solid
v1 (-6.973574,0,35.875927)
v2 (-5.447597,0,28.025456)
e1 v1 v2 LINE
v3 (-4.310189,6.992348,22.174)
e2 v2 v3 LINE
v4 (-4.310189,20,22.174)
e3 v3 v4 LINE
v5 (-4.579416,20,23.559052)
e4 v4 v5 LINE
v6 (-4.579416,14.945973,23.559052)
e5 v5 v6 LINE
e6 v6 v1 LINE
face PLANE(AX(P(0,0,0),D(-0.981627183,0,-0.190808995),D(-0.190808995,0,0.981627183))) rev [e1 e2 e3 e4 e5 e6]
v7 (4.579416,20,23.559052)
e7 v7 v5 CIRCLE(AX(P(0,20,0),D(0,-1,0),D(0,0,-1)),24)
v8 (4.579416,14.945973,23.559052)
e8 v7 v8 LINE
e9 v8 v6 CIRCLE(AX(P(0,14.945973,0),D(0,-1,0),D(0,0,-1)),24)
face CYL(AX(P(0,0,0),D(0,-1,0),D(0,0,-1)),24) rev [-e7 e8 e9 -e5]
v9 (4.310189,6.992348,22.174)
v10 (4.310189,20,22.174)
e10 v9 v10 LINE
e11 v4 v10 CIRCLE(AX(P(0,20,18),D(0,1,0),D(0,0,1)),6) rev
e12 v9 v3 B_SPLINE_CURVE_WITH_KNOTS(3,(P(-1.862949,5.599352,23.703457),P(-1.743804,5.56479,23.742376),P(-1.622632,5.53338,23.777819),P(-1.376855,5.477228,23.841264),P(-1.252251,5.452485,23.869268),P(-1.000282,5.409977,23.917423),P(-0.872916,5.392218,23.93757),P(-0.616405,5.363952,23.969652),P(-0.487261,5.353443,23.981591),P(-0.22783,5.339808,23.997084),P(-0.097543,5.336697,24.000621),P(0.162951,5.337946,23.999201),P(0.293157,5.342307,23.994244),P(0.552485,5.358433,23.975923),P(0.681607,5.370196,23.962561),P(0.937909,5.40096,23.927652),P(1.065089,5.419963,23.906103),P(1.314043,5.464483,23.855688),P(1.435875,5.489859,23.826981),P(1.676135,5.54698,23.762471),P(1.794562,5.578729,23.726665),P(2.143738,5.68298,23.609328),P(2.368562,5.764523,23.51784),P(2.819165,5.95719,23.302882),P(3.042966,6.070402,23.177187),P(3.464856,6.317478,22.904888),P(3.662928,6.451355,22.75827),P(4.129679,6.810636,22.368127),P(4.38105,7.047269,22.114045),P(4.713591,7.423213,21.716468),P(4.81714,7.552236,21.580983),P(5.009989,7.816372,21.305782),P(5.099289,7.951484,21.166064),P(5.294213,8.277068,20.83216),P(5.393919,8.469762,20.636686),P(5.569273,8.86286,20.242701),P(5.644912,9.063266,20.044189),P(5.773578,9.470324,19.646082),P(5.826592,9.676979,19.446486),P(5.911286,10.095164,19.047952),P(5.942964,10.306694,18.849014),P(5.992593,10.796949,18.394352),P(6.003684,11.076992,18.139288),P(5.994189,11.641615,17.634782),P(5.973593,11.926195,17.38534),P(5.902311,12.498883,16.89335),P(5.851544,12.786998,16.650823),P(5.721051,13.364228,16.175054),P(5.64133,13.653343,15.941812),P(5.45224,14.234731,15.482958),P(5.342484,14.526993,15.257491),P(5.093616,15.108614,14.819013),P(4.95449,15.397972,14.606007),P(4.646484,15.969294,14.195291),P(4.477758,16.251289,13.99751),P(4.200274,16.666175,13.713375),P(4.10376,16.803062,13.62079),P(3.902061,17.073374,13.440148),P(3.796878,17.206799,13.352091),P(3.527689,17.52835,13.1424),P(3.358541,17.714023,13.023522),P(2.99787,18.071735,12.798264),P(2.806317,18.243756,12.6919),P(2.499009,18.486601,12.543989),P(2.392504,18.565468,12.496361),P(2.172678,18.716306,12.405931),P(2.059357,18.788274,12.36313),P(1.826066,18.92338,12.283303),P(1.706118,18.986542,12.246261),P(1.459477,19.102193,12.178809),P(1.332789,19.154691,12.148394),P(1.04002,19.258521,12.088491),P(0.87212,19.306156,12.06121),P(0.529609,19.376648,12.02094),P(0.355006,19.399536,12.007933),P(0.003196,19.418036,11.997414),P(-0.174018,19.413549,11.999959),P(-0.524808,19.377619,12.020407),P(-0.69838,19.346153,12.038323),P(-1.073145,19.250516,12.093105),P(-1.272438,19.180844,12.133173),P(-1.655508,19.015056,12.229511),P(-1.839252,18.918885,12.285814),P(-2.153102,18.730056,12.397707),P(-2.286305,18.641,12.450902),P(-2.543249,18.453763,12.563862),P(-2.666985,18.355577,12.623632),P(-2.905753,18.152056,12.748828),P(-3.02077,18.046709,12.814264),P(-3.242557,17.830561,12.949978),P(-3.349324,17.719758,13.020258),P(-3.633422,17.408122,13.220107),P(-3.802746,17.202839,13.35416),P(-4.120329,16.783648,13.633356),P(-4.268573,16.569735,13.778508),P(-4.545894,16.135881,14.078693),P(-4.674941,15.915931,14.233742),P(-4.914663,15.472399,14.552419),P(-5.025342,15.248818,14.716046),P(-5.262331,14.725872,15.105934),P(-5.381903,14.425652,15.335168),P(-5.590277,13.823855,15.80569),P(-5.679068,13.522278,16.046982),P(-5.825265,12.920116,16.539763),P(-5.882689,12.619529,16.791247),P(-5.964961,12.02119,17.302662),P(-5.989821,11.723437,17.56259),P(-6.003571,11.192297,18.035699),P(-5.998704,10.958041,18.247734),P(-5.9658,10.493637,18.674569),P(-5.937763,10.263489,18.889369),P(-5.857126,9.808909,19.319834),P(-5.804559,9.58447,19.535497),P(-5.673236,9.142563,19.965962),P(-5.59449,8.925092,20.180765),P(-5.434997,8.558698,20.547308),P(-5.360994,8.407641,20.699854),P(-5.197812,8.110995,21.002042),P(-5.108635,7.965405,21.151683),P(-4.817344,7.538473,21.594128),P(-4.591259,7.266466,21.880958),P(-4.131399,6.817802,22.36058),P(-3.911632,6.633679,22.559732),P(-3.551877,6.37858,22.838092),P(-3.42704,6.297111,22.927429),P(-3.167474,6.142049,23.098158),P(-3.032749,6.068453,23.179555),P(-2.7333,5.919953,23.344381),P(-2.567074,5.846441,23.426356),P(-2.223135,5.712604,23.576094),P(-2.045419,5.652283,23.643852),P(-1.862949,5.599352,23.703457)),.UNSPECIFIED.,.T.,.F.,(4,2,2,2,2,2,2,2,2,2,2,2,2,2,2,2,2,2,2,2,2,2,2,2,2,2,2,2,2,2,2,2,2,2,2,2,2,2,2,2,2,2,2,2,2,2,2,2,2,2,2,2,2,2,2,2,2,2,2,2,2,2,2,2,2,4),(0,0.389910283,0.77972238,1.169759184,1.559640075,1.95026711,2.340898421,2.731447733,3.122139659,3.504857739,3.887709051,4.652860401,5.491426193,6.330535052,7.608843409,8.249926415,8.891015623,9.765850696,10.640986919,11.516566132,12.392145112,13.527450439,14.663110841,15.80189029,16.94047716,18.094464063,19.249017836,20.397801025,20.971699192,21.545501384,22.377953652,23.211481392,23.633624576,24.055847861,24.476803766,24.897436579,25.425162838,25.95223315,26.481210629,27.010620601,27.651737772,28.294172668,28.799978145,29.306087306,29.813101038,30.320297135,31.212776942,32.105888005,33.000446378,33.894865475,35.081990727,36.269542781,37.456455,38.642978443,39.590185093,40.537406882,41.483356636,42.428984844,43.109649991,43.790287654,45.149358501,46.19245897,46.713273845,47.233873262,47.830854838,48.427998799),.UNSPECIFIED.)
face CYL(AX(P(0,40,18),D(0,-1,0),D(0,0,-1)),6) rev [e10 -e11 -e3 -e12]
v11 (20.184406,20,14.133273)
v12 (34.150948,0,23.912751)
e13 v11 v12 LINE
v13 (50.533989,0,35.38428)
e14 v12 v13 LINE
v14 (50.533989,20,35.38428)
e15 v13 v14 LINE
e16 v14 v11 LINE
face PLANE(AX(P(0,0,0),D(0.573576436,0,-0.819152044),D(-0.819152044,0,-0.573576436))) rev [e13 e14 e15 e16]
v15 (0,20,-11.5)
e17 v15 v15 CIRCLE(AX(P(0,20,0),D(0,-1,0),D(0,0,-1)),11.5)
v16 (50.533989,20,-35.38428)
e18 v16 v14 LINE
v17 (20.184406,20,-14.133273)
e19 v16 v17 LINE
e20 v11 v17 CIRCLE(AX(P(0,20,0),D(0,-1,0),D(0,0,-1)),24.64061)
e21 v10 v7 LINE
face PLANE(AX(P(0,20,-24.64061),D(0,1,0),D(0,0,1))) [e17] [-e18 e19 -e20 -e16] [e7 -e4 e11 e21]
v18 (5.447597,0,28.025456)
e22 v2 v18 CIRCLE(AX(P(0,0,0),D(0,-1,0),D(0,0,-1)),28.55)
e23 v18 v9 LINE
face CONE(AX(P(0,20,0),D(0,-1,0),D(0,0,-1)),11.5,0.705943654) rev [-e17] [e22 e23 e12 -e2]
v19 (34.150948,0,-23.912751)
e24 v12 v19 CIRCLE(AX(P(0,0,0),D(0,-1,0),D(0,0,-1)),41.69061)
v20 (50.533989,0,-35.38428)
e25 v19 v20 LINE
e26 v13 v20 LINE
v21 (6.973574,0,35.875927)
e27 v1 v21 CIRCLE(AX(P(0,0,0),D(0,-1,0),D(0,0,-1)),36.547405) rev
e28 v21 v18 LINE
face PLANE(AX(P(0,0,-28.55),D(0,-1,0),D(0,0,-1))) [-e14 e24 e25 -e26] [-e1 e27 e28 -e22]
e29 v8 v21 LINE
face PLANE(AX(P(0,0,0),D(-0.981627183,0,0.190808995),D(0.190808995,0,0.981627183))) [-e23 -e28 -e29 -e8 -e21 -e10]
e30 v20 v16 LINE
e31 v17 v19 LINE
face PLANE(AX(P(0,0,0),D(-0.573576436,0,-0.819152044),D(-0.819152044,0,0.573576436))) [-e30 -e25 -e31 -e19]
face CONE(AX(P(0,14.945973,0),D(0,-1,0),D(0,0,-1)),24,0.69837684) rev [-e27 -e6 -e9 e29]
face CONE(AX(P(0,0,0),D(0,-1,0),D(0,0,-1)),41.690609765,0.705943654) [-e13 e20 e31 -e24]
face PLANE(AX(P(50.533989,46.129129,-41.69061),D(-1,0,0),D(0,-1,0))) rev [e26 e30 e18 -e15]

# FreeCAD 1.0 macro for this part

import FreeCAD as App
import Part
import Sketcher

V = App.Vector
Q = App.Units.Quantity

doc = App.newDocument("Part")
body = doc.addObject("PartDesign::Body", "Body")

# Sketch on YZ plane
sketch1 = body.newObject("Sketcher::SketchObject", "Sketch")
sketch1.AttachmentSupport = (doc.getObject("YZ_Plane"), [""])
sketch1.MapMode = "FlatFace"
sketch1.addGeometry([
    Part.LineSegment(V(20, -11.5, 0), V(0, -28.55, 0)),
    Part.LineSegment(V(0, -28.55, 0), V(0, -41.69061, 0)),
    Part.LineSegment(V(0, -41.69061, 0), V(20, -24.64061, 0)),
    Part.LineSegment(V(20, -24.64061, 0), V(20, -11.5, 0)),
], False)
sketch1.addConstraint([
    Sketcher.Constraint("Coincident", 0, 2, 1, 1),
    Sketcher.Constraint("Coincident", 1, 2, 2, 1),
    Sketcher.Constraint("Coincident", 2, 2, 3, 1),
    Sketcher.Constraint("Coincident", 3, 2, 0, 1),
    Sketcher.Constraint("Vertical", 1),
    Sketcher.Constraint("Vertical", 3),
    Sketcher.Constraint("PointOnObject", 0, 2, -2),
    Sketcher.Constraint("Parallel", 0, 2),
    Sketcher.Constraint("DistanceX", -1, 1, 2, 2, Q("20 mm")),
    Sketcher.Constraint("DistanceY", 3, 2, -1, 1, Q("11.5 mm")),
    Sketcher.Constraint("DistanceY", 0, 2, -1, 1, Q("28.55 mm")),
    Sketcher.Constraint("DistanceY", 1, 2, 1, 1, Q("13.14061 mm")),
])
revolution = body.newObject("PartDesign::Revolution", "Revolution")
revolution.Profile = sketch1
revolution.ReferenceAxis = (sketch1, ["H_Axis"])
revolution.Angle = 360

# Sketch on XY plane
sketch2 = body.newObject("Sketcher::SketchObject", "Sketch001")
sketch2.AttachmentSupport = (doc.getObject("XY_Plane"), [""])
sketch2.MapMode = "FlatFace"
sketch2.addGeometry([
    Part.LineSegment(V(61.69061, 20, 0), V(24.64061, 20, 0)),
    Part.LineSegment(V(24.64061, 20, 0), V(41.69061, 0, 0)),
    Part.LineSegment(V(41.69061, 0, 0), V(61.69061, 0, 0)),
    Part.LineSegment(V(61.69061, 0, 0), V(61.69061, 20, 0)),
], False)
sketch2.addConstraint([
    Sketcher.Constraint("Coincident", 0, 2, 1, 1),
    Sketcher.Constraint("Coincident", 1, 2, 2, 1),
    Sketcher.Constraint("Coincident", 2, 2, 3, 1),
    Sketcher.Constraint("Coincident", 3, 2, 0, 1),
    Sketcher.Constraint("Horizontal", 0),
    Sketcher.Constraint("Horizontal", 2),
    Sketcher.Constraint("Vertical", 3),
    Sketcher.Constraint("PointOnObject", 1, 2, -1),
    Sketcher.Constraint("Equal", 2, 3),
    Sketcher.Constraint("DistanceX", 2, 1, 2, 2, Q("20 mm")),
    Sketcher.Constraint("DistanceX", 0, 2, 0, 1, Q("37.05 mm")),
    Sketcher.Constraint("DistanceX", -1, 1, 0, 2, Q("24.64061 mm")),
])
revolution2 = body.newObject("PartDesign::Revolution", "Revolution001")
revolution2.Profile = sketch2
revolution2.ReferenceAxis = (sketch2, ["V_Axis"])
revolution2.Angle = 35

# Sketch on XY plane
sketch3 = body.newObject("Sketcher::SketchObject", "Sketch002")
sketch3.AttachmentSupport = (doc.getObject("XY_Plane"), [""])
sketch3.MapMode = "FlatFace"
sketch3.addGeometry([
    Part.LineSegment(V(61.69061, 20, 0), V(24.64061, 20, 0)),
    Part.LineSegment(V(24.64061, 20, 0), V(41.69061, 0, 0)),
    Part.LineSegment(V(41.69061, 0, 0), V(61.69061, 0, 0)),
    Part.LineSegment(V(61.69061, 0, 0), V(61.69061, 20, 0)),
], False)
sketch3.addConstraint([
    Sketcher.Constraint("Coincident", 0, 2, 1, 1),
    Sketcher.Constraint("Coincident", 1, 2, 2, 1),
    Sketcher.Constraint("Coincident", 2, 2, 3, 1),
    Sketcher.Constraint("Coincident", 3, 2, 0, 1),
    Sketcher.Constraint("Horizontal", 0),
    Sketcher.Constraint("Horizontal", 2),
    Sketcher.Constraint("Vertical", 3),
    Sketcher.Constraint("PointOnObject", 1, 2, -1),
    Sketcher.Constraint("Equal", 2, 3),
    Sketcher.Constraint("DistanceX", 2, 1, 2, 2, Q("20 mm")),
    Sketcher.Constraint("DistanceX", 0, 2, 0, 1, Q("37.05 mm")),
    Sketcher.Constraint("DistanceX", -1, 1, 0, 2, Q("24.64061 mm")),
])
revolution3 = body.newObject("PartDesign::Revolution", "Revolution002")
revolution3.Profile = sketch3
revolution3.ReferenceAxis = (sketch3, ["V_Axis"])
revolution3.Angle = 35
revolution3.Reversed = True

# Sketch on XY plane
sketch4 = body.newObject("Sketcher::SketchObject", "Sketch003")
sketch4.AttachmentSupport = (doc.getObject("XY_Plane"), [""])
sketch4.MapMode = "FlatFace"
sketch4.addGeometry([
    Part.LineSegment(V(50.533989, 46.129129, 0), V(50.533989, -20.590633, 0)),
    Part.LineSegment(V(50.533989, -20.590633, 0), V(105.21408, -20.590633, 0)),
    Part.LineSegment(V(105.21408, -20.590633, 0), V(105.21408, 46.129129, 0)),
    Part.LineSegment(V(105.21408, 46.129129, 0), V(50.533989, 46.129129, 0)),
], False)
sketch4.addConstraint([
    Sketcher.Constraint("Coincident", 0, 2, 1, 1),
    Sketcher.Constraint("Coincident", 1, 2, 2, 1),
    Sketcher.Constraint("Coincident", 2, 2, 3, 1),
    Sketcher.Constraint("Coincident", 3, 2, 0, 1),
    Sketcher.Constraint("Vertical", 0),
    Sketcher.Constraint("Horizontal", 1),
    Sketcher.Constraint("Vertical", 2),
    Sketcher.Constraint("Horizontal", 3),
    Sketcher.Constraint("DistanceX", 1, 1, 1, 2, Q("54.680091 mm")),
    Sketcher.Constraint("DistanceY", 0, 2, 0, 1, Q("66.719762 mm")),
    Sketcher.Constraint("DistanceX", -1, 1, 0, 2, Q("50.533989 mm")),
    Sketcher.Constraint("DistanceY", -1, 1, 2, 2, Q("46.129129 mm")),
])
pocket1 = body.newObject("PartDesign::Pocket", "Pocket")
pocket1.Profile = sketch4
pocket1.Type = "ThroughAll"
pocket1.Midplane = True

# Sketch on XZ plane
sketch5 = body.newObject("Sketcher::SketchObject", "Sketch004")
sketch5.AttachmentSupport = (doc.getObject("XZ_Plane"), [""])
sketch5.MapMode = "FlatFace"
sketch5.addGeometry(Part.Circle(V(0, 18, 0), V(0, 0, 1), 6), False)
sketch5.addConstraint([
    Sketcher.Constraint("PointOnObject", 0, 3, -2),
    Sketcher.Constraint("Diameter", 0, Q("12 mm")),
    Sketcher.Constraint("DistanceY", -1, 1, 0, 3, Q("18 mm")),
])
pocket2 = body.newObject("PartDesign::Pocket", "Pocket001")
pocket2.Profile = sketch5
pocket2.Length = 40

# Sketch on YZ plane
sketch6 = body.newObject("Sketcher::SketchObject", "Sketch005")
sketch6.AttachmentSupport = (doc.getObject("YZ_Plane"), [""])
sketch6.MapMode = "FlatFace"
sketch6.addGeometry([
    Part.LineSegment(V(14.945973, 24, 0), V(-8.562898, 43.736107, 0)),  # 0
    Part.LineSegment(V(-8.562898, 43.736107, 0), V(-8.562898, 17.388176, 0)),  # 1
    Part.LineSegment(V(-8.562898, 17.388176, 0), V(12.56371, 18.70488, 0)),  # 2
    Part.LineSegment(V(12.56371, 18.70488, 0), V(20, 18.431561, 0)),  # 3
    Part.LineSegment(V(20, 18.431561, 0), V(20, 24, 0)),  # 4
    Part.LineSegment(V(20, 24, 0), V(14.945973, 24, 0)),  # 5
], False)
sketch6.addConstraint([
    Sketcher.Constraint("Coincident", 0, 2, 1, 1),
    Sketcher.Constraint("Coincident", 1, 2, 2, 1),
    Sketcher.Constraint("Coincident", 2, 2, 3, 1),
    Sketcher.Constraint("Coincident", 3, 2, 4, 1),
    Sketcher.Constraint("Coincident", 4, 2, 5, 1),
    Sketcher.Constraint("Coincident", 5, 2, 0, 1),
    Sketcher.Constraint("Vertical", 1),
    Sketcher.Constraint("Vertical", 4),
    Sketcher.Constraint("Horizontal", 5),
    Sketcher.Constraint("DistanceX", -1, 1, 3, 2, Q("20 mm")),
    Sketcher.Constraint("DistanceY", -1, 1, 4, 2, Q("24 mm")),
    Sketcher.Constraint("Distance", 2, Q("21.167599 mm")),
    Sketcher.Constraint("DistanceY", 1, 2, 1, 1, Q("26.347931 mm")),
    Sketcher.Constraint("DistanceY", 4, 1, 4, 2, Q("5.568439 mm")),
    Sketcher.Constraint("Distance", 3, Q("7.441312 mm")),
    Sketcher.Constraint("DistanceX", 5, 2, 5, 1, Q("5.054027 mm")),
    Sketcher.Constraint("DistanceX", -1, 1, 2, 2, Q("12.56371 mm")),
    Sketcher.Constraint("DistanceX", 1, 2, 5, 2, Q("23.508871 mm")),
])
groove = body.newObject("PartDesign::Groove", "Groove")
groove.Profile = sketch6
groove.ReferenceAxis = (sketch6, ["H_Axis"])
groove.Angle = 11

# Sketch on YZ plane
sketch7 = body.newObject("Sketcher::SketchObject", "Sketch006")
sketch7.AttachmentSupport = (doc.getObject("YZ_Plane"), [""])
sketch7.MapMode = "FlatFace"
sketch7.addGeometry([
    Part.LineSegment(V(14.945973, 24, 0), V(-8.562898, 43.736107, 0)),  # 0
    Part.LineSegment(V(-8.562898, 43.736107, 0), V(-8.562898, 17.388176, 0)),  # 1
    Part.LineSegment(V(-8.562898, 17.388176, 0), V(12.56371, 18.70488, 0)),  # 2
    Part.LineSegment(V(12.56371, 18.70488, 0), V(20, 18.431561, 0)),  # 3
    Part.LineSegment(V(20, 18.431561, 0), V(20, 24, 0)),  # 4
    Part.LineSegment(V(20, 24, 0), V(14.945973, 24, 0)),  # 5
], False)
sketch7.addConstraint([
    Sketcher.Constraint("Coincident", 0, 2, 1, 1),
    Sketcher.Constraint("Coincident", 1, 2, 2, 1),
    Sketcher.Constraint("Coincident", 2, 2, 3, 1),
    Sketcher.Constraint("Coincident", 3, 2, 4, 1),
    Sketcher.Constraint("Coincident", 4, 2, 5, 1),
    Sketcher.Constraint("Coincident", 5, 2, 0, 1),
    Sketcher.Constraint("Vertical", 1),
    Sketcher.Constraint("Vertical", 4),
    Sketcher.Constraint("Horizontal", 5),
    Sketcher.Constraint("DistanceX", -1, 1, 3, 2, Q("20 mm")),
    Sketcher.Constraint("DistanceY", -1, 1, 4, 2, Q("24 mm")),
    Sketcher.Constraint("Distance", 2, Q("21.167599 mm")),
    Sketcher.Constraint("DistanceY", 1, 2, 1, 1, Q("26.347931 mm")),
    Sketcher.Constraint("DistanceY", 4, 1, 4, 2, Q("5.568439 mm")),
    Sketcher.Constraint("Distance", 3, Q("7.441312 mm")),
    Sketcher.Constraint("DistanceX", 5, 2, 5, 1, Q("5.054027 mm")),
    Sketcher.Constraint("DistanceX", -1, 1, 2, 2, Q("12.56371 mm")),
    Sketcher.Constraint("DistanceX", 1, 2, 5, 2, Q("23.508871 mm")),
])
groove2 = body.newObject("PartDesign::Groove", "Groove001")
groove2.Profile = sketch7
groove2.ReferenceAxis = (sketch7, ["H_Axis"])
groove2.Angle = 11
groove2.Reversed = True

doc.recompute()
